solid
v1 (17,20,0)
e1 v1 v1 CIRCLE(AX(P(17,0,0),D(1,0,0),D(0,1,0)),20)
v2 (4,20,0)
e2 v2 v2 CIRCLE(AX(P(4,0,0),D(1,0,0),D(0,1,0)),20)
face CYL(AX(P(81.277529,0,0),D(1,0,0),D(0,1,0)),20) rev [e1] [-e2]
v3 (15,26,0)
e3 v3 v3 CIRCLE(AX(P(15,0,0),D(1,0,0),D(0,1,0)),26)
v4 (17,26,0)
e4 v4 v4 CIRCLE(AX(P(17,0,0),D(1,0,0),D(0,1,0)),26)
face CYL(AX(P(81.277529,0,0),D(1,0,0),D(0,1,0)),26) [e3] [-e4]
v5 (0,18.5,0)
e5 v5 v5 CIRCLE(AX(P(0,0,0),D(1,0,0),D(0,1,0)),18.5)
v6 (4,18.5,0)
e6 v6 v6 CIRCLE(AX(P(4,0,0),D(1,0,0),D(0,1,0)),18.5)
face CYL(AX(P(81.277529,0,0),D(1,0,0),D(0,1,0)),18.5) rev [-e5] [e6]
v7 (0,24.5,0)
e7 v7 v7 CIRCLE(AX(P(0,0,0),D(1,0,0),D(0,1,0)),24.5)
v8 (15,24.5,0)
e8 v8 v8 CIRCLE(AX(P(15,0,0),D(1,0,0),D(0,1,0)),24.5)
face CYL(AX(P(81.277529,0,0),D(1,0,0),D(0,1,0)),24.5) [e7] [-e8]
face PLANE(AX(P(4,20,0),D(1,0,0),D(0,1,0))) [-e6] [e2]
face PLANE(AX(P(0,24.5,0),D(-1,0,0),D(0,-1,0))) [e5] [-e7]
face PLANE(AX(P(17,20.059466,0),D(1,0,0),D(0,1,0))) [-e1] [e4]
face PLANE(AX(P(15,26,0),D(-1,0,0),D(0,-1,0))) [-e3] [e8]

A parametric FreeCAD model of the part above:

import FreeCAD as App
import Part
import Sketcher
Q = App.Units.Quantity

doc = App.newDocument("Part")
body = doc.addObject("PartDesign::Body", "Body")

# Sketch on XY plane
sketch1 = body.newObject("Sketcher::SketchObject", "Sketch")
sketch1.AttachmentSupport = (doc.getObject("XY_Plane"), [""])
sketch1.MapMode = "FlatFace"
sketch1.addGeometry([
    Part.LineSegment(App.Vector(4, 20, 0), App.Vector(17, 20, 0)),  # 0
    Part.LineSegment(App.Vector(17, 20, 0), App.Vector(17, 26, 0)),  # 1
    Part.LineSegment(App.Vector(17, 26, 0), App.Vector(15, 26, 0)),  # 2
    Part.LineSegment(App.Vector(15, 26, 0), App.Vector(15, 24.5, 0)),  # 3
    Part.LineSegment(App.Vector(15, 24.5, 0), App.Vector(0, 24.5, 0)),  # 4
    Part.LineSegment(App.Vector(0, 24.5, 0), App.Vector(0, 18.5, 0)),  # 5
    Part.LineSegment(App.Vector(0, 18.5, 0), App.Vector(4, 18.5, 0)),  # 6
    Part.LineSegment(App.Vector(4, 18.5, 0), App.Vector(4, 20, 0)),  # 7
], False)
sketch1.addConstraint([
    Sketcher.Constraint("Coincident", 0, 2, 1, 1),
    Sketcher.Constraint("Coincident", 1, 2, 2, 1),
    Sketcher.Constraint("Coincident", 2, 2, 3, 1),
    Sketcher.Constraint("Coincident", 3, 2, 4, 1),
    Sketcher.Constraint("Coincident", 4, 2, 5, 1),
    Sketcher.Constraint("Coincident", 5, 2, 6, 1),
    Sketcher.Constraint("Coincident", 6, 2, 7, 1),
    Sketcher.Constraint("Coincident", 7, 2, 0, 1),
    Sketcher.Constraint("Horizontal", 0),
    Sketcher.Constraint("Vertical", 1),
    Sketcher.Constraint("Horizontal", 2),
    Sketcher.Constraint("Vertical", 3),
    Sketcher.Constraint("Horizontal", 4),
    Sketcher.Constraint("Vertical", 5),
    Sketcher.Constraint("Horizontal", 6),
    Sketcher.Constraint("Vertical", 7),
    Sketcher.Constraint("PointOnObject", 4, 2, -2),
    Sketcher.Constraint("Equal", 1, 5),
    Sketcher.Constraint("DistanceX", 0, 1, 0, 2, Q("13 mm")),
    Sketcher.Constraint("DistanceX", 2, 2, 2, 1, Q("2 mm")),
    Sketcher.Constraint("DistanceX", 4, 2, 4, 1, Q("15 mm")),
    Sketcher.Constraint("DistanceY", 1, 1, 1, 2, Q("6 mm")),
    Sketcher.Constraint("DistanceY", 3, 2, 3, 1, Q("1.5 mm")),
    Sketcher.Constraint("DistanceY", -1, 1, 0, 2, Q("20 mm")),
])
revolution = body.newObject("PartDesign::Revolution", "Revolution")
revolution.Profile = sketch1
revolution.ReferenceAxis = (sketch1, ["H_Axis"])
revolution.Angle = 360

doc.recompute()
